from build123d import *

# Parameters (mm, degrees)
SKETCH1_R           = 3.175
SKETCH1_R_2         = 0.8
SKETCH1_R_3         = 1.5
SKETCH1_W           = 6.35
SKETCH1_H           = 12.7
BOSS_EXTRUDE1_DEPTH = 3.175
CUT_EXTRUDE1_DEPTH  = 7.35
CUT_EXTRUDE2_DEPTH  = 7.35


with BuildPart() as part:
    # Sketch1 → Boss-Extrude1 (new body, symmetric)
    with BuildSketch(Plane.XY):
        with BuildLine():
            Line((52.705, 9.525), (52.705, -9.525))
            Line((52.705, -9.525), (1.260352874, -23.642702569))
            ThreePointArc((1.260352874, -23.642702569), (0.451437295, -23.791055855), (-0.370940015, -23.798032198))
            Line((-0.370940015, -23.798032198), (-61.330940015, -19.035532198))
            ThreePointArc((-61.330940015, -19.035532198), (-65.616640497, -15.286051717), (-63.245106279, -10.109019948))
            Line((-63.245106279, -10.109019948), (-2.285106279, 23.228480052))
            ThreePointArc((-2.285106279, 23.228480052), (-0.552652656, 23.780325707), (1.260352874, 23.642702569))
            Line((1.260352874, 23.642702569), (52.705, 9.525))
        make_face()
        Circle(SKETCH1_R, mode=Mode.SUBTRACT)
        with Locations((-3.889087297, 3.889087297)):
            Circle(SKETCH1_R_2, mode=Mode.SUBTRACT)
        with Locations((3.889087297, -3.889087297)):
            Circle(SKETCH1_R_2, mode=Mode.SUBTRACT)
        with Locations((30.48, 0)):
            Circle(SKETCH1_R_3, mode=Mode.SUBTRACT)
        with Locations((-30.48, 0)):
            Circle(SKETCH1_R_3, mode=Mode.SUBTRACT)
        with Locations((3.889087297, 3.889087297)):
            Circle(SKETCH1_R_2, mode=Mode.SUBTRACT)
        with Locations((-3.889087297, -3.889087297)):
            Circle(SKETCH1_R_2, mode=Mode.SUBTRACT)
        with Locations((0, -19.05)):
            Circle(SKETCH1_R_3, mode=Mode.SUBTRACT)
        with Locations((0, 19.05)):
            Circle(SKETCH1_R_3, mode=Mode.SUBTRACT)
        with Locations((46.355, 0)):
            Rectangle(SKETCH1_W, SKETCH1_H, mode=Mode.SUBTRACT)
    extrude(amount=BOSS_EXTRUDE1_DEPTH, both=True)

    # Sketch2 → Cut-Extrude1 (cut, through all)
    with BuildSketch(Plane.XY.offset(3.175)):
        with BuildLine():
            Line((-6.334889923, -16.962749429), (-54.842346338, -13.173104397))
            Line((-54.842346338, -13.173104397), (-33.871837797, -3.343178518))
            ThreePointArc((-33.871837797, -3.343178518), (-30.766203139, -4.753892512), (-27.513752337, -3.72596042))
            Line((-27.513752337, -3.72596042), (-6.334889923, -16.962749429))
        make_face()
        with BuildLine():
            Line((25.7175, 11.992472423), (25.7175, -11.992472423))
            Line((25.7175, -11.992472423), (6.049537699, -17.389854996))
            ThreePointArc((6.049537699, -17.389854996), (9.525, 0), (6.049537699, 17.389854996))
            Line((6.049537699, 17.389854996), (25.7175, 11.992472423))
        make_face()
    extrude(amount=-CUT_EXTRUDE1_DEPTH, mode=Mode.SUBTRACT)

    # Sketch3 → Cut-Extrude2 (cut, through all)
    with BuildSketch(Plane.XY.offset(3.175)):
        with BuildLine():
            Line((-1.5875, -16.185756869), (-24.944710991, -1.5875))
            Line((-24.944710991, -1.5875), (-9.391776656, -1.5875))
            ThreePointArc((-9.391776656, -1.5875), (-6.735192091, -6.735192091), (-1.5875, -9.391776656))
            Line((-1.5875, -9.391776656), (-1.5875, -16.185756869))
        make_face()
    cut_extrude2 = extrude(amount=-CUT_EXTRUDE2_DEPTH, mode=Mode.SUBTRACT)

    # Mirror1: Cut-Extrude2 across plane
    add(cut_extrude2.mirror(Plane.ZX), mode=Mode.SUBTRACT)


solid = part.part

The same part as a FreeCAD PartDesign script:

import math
import FreeCAD as App
import Part
import Sketcher
Q = App.Units.Quantity


def add_polygon(sketch, points):
    """Adds a closed chain of lines whose ends are joined by coincident constraints."""
    first, n = sketch.GeometryCount, len(points)
    for a, b in zip(points, points[1:] + points[:1]):
        sketch.addGeometry(Part.LineSegment(App.Vector(*a, 0), App.Vector(*b, 0)), False)
    for i in range(n):
        sketch.addConstraint(Sketcher.Constraint("Coincident", first + i, 2, first + (i + 1) % n, 1))

doc = App.newDocument("Part")
params = doc.addObject("Spreadsheet::Sheet", "Params")
for row, (alias, value) in enumerate([
    ("sketch1_diameter", "0.25 in"),
    ("sketch1_height", "0.5 in"),
    ("sketch1_radius", "0.1875 in"),
    ("sketch1_width", "0.25 in"),
    ("sketch1_height2", "0.75 in"),
    ("pad1_length", "0.25 in"),
    ("sketch2_radius", "0.1875 in"),
    ("sketch2_radius2", "1.78125 in"),
    ("sketch3_radius", "0.375 in"),
], start=1):
    params.set(f"A{row}", alias)
    params.set(f"B{row}", "=" + value)
    params.setAlias(f"B{row}", alias)

body = doc.addObject("PartDesign::Body", "Body")

# Sketch on XY plane
sketch1 = doc.addObject("Sketcher::SketchObject", "Sketch")
body.addObject(sketch1)
sketch1.AttachmentSupport = (doc.XY_Plane, [""])
sketch1.MapMode = "FlatFace"
sketch1.addGeometry(Part.LineSegment(App.Vector(52.705, -9.525, 0), App.Vector(52.705, 9.525, 0)), False)  # 0
sketch1.addGeometry(Part.LineSegment(App.Vector(52.705, 9.525, 0), App.Vector(1.260353, 23.642703, 0)), False)  # 1
sketch1.addGeometry(Part.ArcOfCircle(Part.Circle(App.Vector(0, 19.05, 0), App.Vector(0, 0, 1), 4.7625), math.radians(74.654377), math.radians(118.673146)), False)  # 2
sketch1.addGeometry(Part.LineSegment(App.Vector(-2.285106, 23.22848, 0), App.Vector(-63.245106, -10.10902, 0)), False)  # 3
sketch1.addGeometry(Part.ArcOfCircle(Part.Circle(App.Vector(-60.96, -14.2875, 0), App.Vector(0, 0, 1), 4.7625), math.radians(118.673146), math.radians(265.532841)), False)  # 4
sketch1.addGeometry(Part.LineSegment(App.Vector(-61.33094, -19.035532, 0), App.Vector(-0.37094, -23.798032, 0)), False)  # 5
sketch1.addGeometry(Part.ArcOfCircle(Part.Circle(App.Vector(0, -19.05, 0), App.Vector(0, 0, 1), 4.7625), math.radians(-94.467159), math.radians(-74.654377)), False)  # 6
sketch1.addGeometry(Part.LineSegment(App.Vector(1.260353, -23.642703, 0), App.Vector(52.705, -9.525, 0)), False)  # 7
sketch1.addGeometry(Part.Circle(App.Vector(0, -19.05, 0), App.Vector(0, 0, 1), 1.5), False)  # 8
sketch1.addGeometry(Part.Circle(App.Vector(3.889087, -3.889087, 0), App.Vector(0, 0, 1), 0.8), False)  # 9
sketch1.addGeometry(Part.Circle(App.Vector(-3.889087, -3.889087, 0), App.Vector(0, 0, 1), 0.8), False)  # 10
add_polygon(sketch1, [(43.18, -6.35), (43.18, 6.35), (49.53, 6.35), (49.53, -6.35)])  # lines 11-14
sketch1.addGeometry(Part.Circle(App.Vector(30.48, 0, 0), App.Vector(0, 0, 1), 1.5), False)  # 15
sketch1.addGeometry(Part.Circle(App.Vector(0, 0, 0), App.Vector(0, 0, 1), 3.175), False)  # 16
sketch1.addGeometry(Part.Circle(App.Vector(3.889087, 3.889087, 0), App.Vector(0, 0, 1), 0.8), False)  # 17
sketch1.addGeometry(Part.Circle(App.Vector(-3.889087, 3.889087, 0), App.Vector(0, 0, 1), 0.8), False)  # 18
sketch1.addGeometry(Part.Circle(App.Vector(-30.48, 0, 0), App.Vector(0, 0, 1), 1.5), False)  # 19
sketch1.addGeometry(Part.Circle(App.Vector(0, 19.05, 0), App.Vector(0, 0, 1), 1.5), False)  # 20
sketch1.addConstraint(Sketcher.Constraint("Coincident", 0, 2, 1, 1))
sketch1.addConstraint(Sketcher.Constraint("Tangent", 1, 2, 2, 1))
sketch1.addConstraint(Sketcher.Constraint("Tangent", 2, 2, 3, 1))
sketch1.addConstraint(Sketcher.Constraint("Tangent", 3, 2, 4, 1))
sketch1.addConstraint(Sketcher.Constraint("Tangent", 4, 2, 5, 1))
sketch1.addConstraint(Sketcher.Constraint("Tangent", 5, 2, 6, 1))
sketch1.addConstraint(Sketcher.Constraint("Tangent", 6, 2, 7, 1))
sketch1.addConstraint(Sketcher.Constraint("Coincident", 7, 2, 0, 1))
sketch1.addConstraint(Sketcher.Constraint("Vertical", 0))
sketch1.addConstraint(Sketcher.Constraint("Vertical", 11))
sketch1.addConstraint(Sketcher.Constraint("Horizontal", 12))
sketch1.addConstraint(Sketcher.Constraint("Vertical", 13))
sketch1.addConstraint(Sketcher.Constraint("Horizontal", 14))
sketch1.addConstraint(Sketcher.Constraint("Coincident", 16, 3, -1, 1))
sketch1.addConstraint(Sketcher.Constraint("Coincident", 8, 3, 6, 3))
sketch1.addConstraint(Sketcher.Constraint("Coincident", 20, 3, 2, 3))
sketch1.addConstraint(Sketcher.Constraint("Equal", 2, 4))
sketch1.addConstraint(Sketcher.Constraint("Equal", 4, 6))
sketch1.addConstraint(Sketcher.Constraint("Equal", 9, 10))
sketch1.addConstraint(Sketcher.Constraint("Equal", 8, 15))
sketch1.addConstraint(Sketcher.Constraint("Equal", 10, 17))
sketch1.addConstraint(Sketcher.Constraint("Equal", 17, 18))
sketch1.addConstraint(Sketcher.Constraint("Equal", 15, 19))
sketch1.addConstraint(Sketcher.Constraint("Equal", 19, 20))
sketch1.addConstraint(Sketcher.Constraint("Symmetric", 2, 3, 6, 3, -1, 1))
sketch1.addConstraint(Sketcher.Constraint("Symmetric", 10, 3, 17, 3, -1, 1))
sketch1.addConstraint(Sketcher.Constraint("Symmetric", 9, 3, 18, 3, -1, 1))
sketch1.addConstraint(Sketcher.Constraint("Symmetric", 15, 3, 19, 3, -1, 1))
sketch1.addConstraint(Sketcher.Constraint("Symmetric", 9, 3, 10, 3, -2))
sketch1.addConstraint(Sketcher.Constraint("Symmetric", 1, 2, 6, 2, -1))
sketch1.addConstraint(Sketcher.Constraint("PointOnObject", 15, 3, -1))
sketch1.addConstraint(Sketcher.Constraint("Diameter", 16, Q("0.25 in")))
sketch1.addConstraint(Sketcher.Constraint("DistanceY", 11, 1, 11, 2, Q("0.5 in")))
sketch1.addConstraint(Sketcher.Constraint("Radius", 2, Q("0.1875 in")))
sketch1.addConstraint(Sketcher.Constraint("DistanceX", 12, 1, 12, 2, Q("0.25 in")))
sketch1.addConstraint(Sketcher.Constraint("DistanceY", 0, 1, 0, 2, Q("0.75 in")))
sketch1.addConstraint(Sketcher.Constraint("DistanceX", 4, 3, -1, 1, Q("2.4 in")))
sketch1.addConstraint(Sketcher.Constraint("DistanceX", -1, 1, 15, 3, Q("1.2 in")))
sketch1.addConstraint(Sketcher.Constraint("DistanceX", -1, 1, 11, 2, Q("1.7 in")))
sketch1.addConstraint(Sketcher.Constraint("DistanceY", 6, 3, 2, 3, Q("1.5 in")))
sketch1.addConstraint(Sketcher.Constraint("Diameter", 8, 3.0))
sketch1.addConstraint(Sketcher.Constraint("Diameter", 9, 1.6))
sketch1.addConstraint(Sketcher.Constraint("DistanceY", -1, 1, 11, 2, Q("0.25 in")))
sketch1.addConstraint(Sketcher.Constraint("DistanceY", 4, 3, -1, 1, Q("0.5625 in")))
sketch1.addConstraint(Sketcher.Constraint("DistanceX", -1, 1, 0, 2, Q("2.075 in")))
sketch1.addConstraint(Sketcher.Constraint("DistanceX", 18, 3, 1, 2, 5.14944))
sketch1.addConstraint(Sketcher.Constraint("DistanceY", 9, 3, -1, 1, 3.889087))
sketch1.setExpression("Constraints[35]", "Params.sketch1_diameter")
sketch1.setExpression("Constraints[36]", "Params.sketch1_height")
sketch1.setExpression("Constraints[37]", "Params.sketch1_radius")
sketch1.setExpression("Constraints[38]", "Params.sketch1_width")
sketch1.setExpression("Constraints[39]", "Params.sketch1_height2")
pad1 = doc.addObject("PartDesign::Pad", "Pad")
body.addObject(pad1)
pad1.Profile = sketch1
pad1.setExpression("Length", "Params.pad1_length")
pad1.Midplane = True

# Sketch on XY plane
sketch2 = doc.addObject("Sketcher::SketchObject", "Sketch001")
body.addObject(sketch2)
sketch2.AttachmentSupport = (doc.XY_Plane, [""])
sketch2.MapMode = "FlatFace"
sketch2.AttachmentOffset = App.Placement(App.Vector(0, 0, 0.125 * 25.4), App.Rotation())
sketch2.addGeometry(Part.LineSegment(App.Vector(-54.842346, -13.173104, 0), App.Vector(-6.33489, -16.962749, 0)), False)
sketch2.addGeometry(Part.LineSegment(App.Vector(-6.33489, -16.962749, 0), App.Vector(-27.513752, -3.72596, 0)), False)
sketch2.addGeometry(Part.ArcOfCircle(Part.Circle(App.Vector(-30.48, 0, 0), App.Vector(0, 0, 1), 4.7625), math.radians(-135.413944), math.radians(-51.476604)), False)
sketch2.addGeometry(Part.LineSegment(App.Vector(-33.871838, -3.343179, 0), App.Vector(-54.842346, -13.173104, 0)), False)
sketch2.addGeometry(Part.LineSegment(App.Vector(25.7175, -11.992472, 0), App.Vector(25.7175, 11.992472, 0)), False)
sketch2.addGeometry(Part.LineSegment(App.Vector(25.7175, 11.992472, 0), App.Vector(6.049538, 17.389855, 0)), False)
sketch2.addGeometry(Part.ArcOfCircle(Part.Circle(App.Vector(-35.71875, 0, 0), App.Vector(0, 0, 1), 45.24375), math.radians(-22.603969), math.radians(22.603969)), False)
sketch2.addGeometry(Part.LineSegment(App.Vector(6.049538, -17.389855, 0), App.Vector(25.7175, -11.992472, 0)), False)
sketch2.addConstraint(Sketcher.Constraint("Coincident", 0, 2, 1, 1))
sketch2.addConstraint(Sketcher.Constraint("Coincident", 1, 2, 2, 2))
sketch2.addConstraint(Sketcher.Constraint("Coincident", 2, 1, 3, 1))
sketch2.addConstraint(Sketcher.Constraint("Coincident", 3, 2, 0, 1))
sketch2.addConstraint(Sketcher.Constraint("Coincident", 4, 2, 5, 1))
sketch2.addConstraint(Sketcher.Constraint("Coincident", 5, 2, 6, 2))
sketch2.addConstraint(Sketcher.Constraint("Coincident", 6, 1, 7, 1))
sketch2.addConstraint(Sketcher.Constraint("Coincident", 7, 2, 4, 1))
sketch2.addConstraint(Sketcher.Constraint("Vertical", 4))
sketch2.addConstraint(Sketcher.Constraint("Symmetric", 5, 2, 6, 1, -1))
sketch2.addConstraint(Sketcher.Constraint("PointOnObject", 2, 3, -1))
sketch2.addConstraint(Sketcher.Constraint("Equal", 5, 7))
sketch2.addConstraint(Sketcher.Constraint("Radius", 2, Q("0.1875 in")))
sketch2.addConstraint(Sketcher.Constraint("Radius", 6, Q("1.78125 in")))
sketch2.addConstraint(Sketcher.Constraint("DistanceX", 2, 3, -1, 1, Q("1.2 in")))
sketch2.addConstraint(Sketcher.Constraint("DistanceX", 6, 3, -1, 1, Q("1.40625 in")))
sketch2.addConstraint(Sketcher.Constraint("DistanceX", -1, 1, 4, 2, Q("1.0125 in")))
sketch2.addConstraint(Sketcher.Constraint("Distance", 5, 20.395109))
sketch2.addConstraint(Sketcher.Constraint("DistanceY", 4, 1, 4, 2, 23.984945))
sketch2.addConstraint(Sketcher.Constraint("DistanceX", 0, 2, -1, 1, 6.33489))
sketch2.addConstraint(Sketcher.Constraint("DistanceY", 0, 2, -1, 1, 16.962749))
sketch2.addConstraint(Sketcher.Constraint("DistanceY", 1, 2, -1, 1, 3.72596))
sketch2.addConstraint(Sketcher.Constraint("DistanceY", 2, 1, -1, 1, 3.343179))
sketch2.addConstraint(Sketcher.Constraint("DistanceX", 3, 2, 2, 1, 20.970509))
sketch2.addConstraint(Sketcher.Constraint("Distance", 0, 48.655264))
sketch2.setExpression("Constraints[12]", "Params.sketch2_radius")
sketch2.setExpression("Constraints[13]", "Params.sketch2_radius2")
pocket1 = doc.addObject("PartDesign::Pocket", "Pocket")
body.addObject(pocket1)
pocket1.Profile = sketch2
pocket1.Type = "ThroughAll"

# Sketch on XY plane
sketch3 = doc.addObject("Sketcher::SketchObject", "Sketch002")
body.addObject(sketch3)
sketch3.AttachmentSupport = (doc.XY_Plane, [""])
sketch3.MapMode = "FlatFace"
sketch3.AttachmentOffset = App.Placement(App.Vector(0, 0, 0.125 * 25.4), App.Rotation())
sketch3.addGeometry(Part.LineSegment(App.Vector(-24.944711, -1.5875, 0), App.Vector(-1.5875, -16.185757, 0)), False)
sketch3.addGeometry(Part.LineSegment(App.Vector(-1.5875, -16.185757, 0), App.Vector(-1.5875, -9.391777, 0)), False)
sketch3.addGeometry(Part.ArcOfCircle(Part.Circle(App.Vector(0, 0, 0), App.Vector(0, 0, 1), 9.525), math.radians(-170.405932), math.radians(-99.594068)), False)
sketch3.addGeometry(Part.LineSegment(App.Vector(-9.391777, -1.5875, 0), App.Vector(-24.944711, -1.5875, 0)), False)
sketch3.addConstraint(Sketcher.Constraint("Coincident", 0, 2, 1, 1))
sketch3.addConstraint(Sketcher.Constraint("Coincident", 1, 2, 2, 2))
sketch3.addConstraint(Sketcher.Constraint("Coincident", 2, 1, 3, 1))
sketch3.addConstraint(Sketcher.Constraint("Coincident", 3, 2, 0, 1))
sketch3.addConstraint(Sketcher.Constraint("Vertical", 1))
sketch3.addConstraint(Sketcher.Constraint("Horizontal", 3))
sketch3.addConstraint(Sketcher.Constraint("Coincident", 2, 3, -1, 1))
sketch3.addConstraint(Sketcher.Constraint("Radius", 2, Q("0.375 in")))
sketch3.addConstraint(Sketcher.Constraint("DistanceX", 0, 2, -1, 1, Q("0.0625 in")))
sketch3.addConstraint(Sketcher.Constraint("DistanceY", 2, 1, -1, 1, Q("0.0625 in")))
sketch3.addConstraint(Sketcher.Constraint("DistanceY", 1, 1, 1, 2, 6.79398))
sketch3.addConstraint(Sketcher.Constraint("DistanceX", 3, 2, 3, 1, 15.552934))
sketch3.setExpression("Constraints[7]", "Params.sketch3_radius")
pocket2 = doc.addObject("PartDesign::Pocket", "Pocket001")
body.addObject(pocket2)
pocket2.Profile = sketch3
pocket2.Type = "ThroughAll"
doc.recompute()

mirrored = doc.addObject("PartDesign::Mirrored", "Mirrored")
body.addObject(mirrored)
mirrored.Originals = [pocket2]
mirrored.MirrorPlane = (doc.XZ_Plane, [""])
body.Tip = mirrored

doc.recompute()
